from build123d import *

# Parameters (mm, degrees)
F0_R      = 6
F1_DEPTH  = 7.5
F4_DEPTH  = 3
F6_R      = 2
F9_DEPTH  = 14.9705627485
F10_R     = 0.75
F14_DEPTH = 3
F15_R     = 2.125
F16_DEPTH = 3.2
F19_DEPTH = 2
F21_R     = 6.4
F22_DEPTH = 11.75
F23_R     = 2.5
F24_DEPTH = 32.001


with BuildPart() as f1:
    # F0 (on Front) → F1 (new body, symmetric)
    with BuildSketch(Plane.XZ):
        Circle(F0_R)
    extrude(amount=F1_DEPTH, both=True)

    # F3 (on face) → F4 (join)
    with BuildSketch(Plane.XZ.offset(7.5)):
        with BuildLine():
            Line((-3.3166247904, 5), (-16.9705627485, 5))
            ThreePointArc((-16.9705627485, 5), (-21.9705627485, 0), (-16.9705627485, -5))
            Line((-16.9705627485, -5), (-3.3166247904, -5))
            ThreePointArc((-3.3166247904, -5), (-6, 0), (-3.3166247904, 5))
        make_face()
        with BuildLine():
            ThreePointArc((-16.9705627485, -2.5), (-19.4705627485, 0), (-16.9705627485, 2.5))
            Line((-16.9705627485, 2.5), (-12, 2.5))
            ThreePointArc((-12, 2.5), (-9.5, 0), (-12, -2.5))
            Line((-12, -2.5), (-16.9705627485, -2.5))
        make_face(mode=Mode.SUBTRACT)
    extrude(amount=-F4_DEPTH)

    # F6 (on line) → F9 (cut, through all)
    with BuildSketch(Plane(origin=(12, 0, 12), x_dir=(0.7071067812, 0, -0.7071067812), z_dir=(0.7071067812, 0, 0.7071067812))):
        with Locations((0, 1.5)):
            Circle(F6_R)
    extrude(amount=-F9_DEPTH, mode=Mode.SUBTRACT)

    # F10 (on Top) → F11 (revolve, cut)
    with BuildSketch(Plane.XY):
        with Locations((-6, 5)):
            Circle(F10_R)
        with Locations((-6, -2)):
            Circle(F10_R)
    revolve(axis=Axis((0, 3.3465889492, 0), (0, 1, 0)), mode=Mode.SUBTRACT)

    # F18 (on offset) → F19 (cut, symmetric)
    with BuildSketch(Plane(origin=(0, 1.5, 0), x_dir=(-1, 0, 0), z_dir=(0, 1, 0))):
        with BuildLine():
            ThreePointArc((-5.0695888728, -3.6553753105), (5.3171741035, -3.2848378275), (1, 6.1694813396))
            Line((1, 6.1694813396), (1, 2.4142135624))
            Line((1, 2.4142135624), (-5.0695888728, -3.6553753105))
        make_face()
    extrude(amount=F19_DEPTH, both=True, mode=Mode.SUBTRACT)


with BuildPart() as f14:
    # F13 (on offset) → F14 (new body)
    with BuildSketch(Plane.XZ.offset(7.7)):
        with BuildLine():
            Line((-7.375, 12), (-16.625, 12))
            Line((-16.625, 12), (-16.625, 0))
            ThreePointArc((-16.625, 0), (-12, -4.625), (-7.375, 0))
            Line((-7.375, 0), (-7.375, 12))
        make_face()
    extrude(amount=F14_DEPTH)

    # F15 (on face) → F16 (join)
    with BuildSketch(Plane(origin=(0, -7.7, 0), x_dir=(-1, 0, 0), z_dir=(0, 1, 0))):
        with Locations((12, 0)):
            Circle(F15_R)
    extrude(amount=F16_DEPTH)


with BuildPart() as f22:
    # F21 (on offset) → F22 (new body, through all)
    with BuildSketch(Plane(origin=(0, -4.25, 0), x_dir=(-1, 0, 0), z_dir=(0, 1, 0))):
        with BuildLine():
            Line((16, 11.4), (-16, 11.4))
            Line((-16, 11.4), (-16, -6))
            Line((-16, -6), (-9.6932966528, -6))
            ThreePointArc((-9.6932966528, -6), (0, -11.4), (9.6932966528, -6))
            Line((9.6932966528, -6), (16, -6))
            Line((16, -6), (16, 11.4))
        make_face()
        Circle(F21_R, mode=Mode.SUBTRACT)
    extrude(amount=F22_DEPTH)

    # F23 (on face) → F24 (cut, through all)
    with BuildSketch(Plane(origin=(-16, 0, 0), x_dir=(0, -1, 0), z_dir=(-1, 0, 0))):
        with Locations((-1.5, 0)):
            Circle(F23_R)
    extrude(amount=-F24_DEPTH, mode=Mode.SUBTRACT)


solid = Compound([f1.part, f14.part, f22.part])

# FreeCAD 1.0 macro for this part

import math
import FreeCAD as App
import Part
import Sketcher
from FreeCAD import Vector
Q = App.Units.Quantity

doc = App.newDocument("Part")
body = doc.addObject("PartDesign::Body", "Body")

# Sketch on XZ plane
sketch1 = body.newObject("Sketcher::SketchObject", "Sketch")
sketch1.AttachmentSupport = (doc.getObject("XZ_Plane"), [""])
sketch1.MapMode = "FlatFace"
sketch1.addGeometry(Part.Circle(Vector(0, 0, 0), Vector(0, 0, 1), 6), False)
sketch1.addConstraint([
    Sketcher.Constraint("Coincident", 0, 3, -1, 1),
    Sketcher.Constraint("Diameter", 0, Q("12 mm")),
])
pad1 = body.newObject("PartDesign::Pad", "Pad")
pad1.Profile = sketch1
pad1.Length = 15
pad1.Midplane = True

# Sketch on XZ plane
sketch2 = body.newObject("Sketcher::SketchObject", "Sketch001")
sketch2.AttachmentSupport = (doc.getObject("XZ_Plane"), [""])
sketch2.MapMode = "FlatFace"
sketch2.AttachmentOffset = App.Placement(Vector(0, 0, 7.5), App.Rotation())
sketch2.addGeometry([
    Part.LineSegment(Vector(-3.3, 5, 0), Vector(-17, 5, 0)),  # 0
    Part.ArcOfCircle(Part.Circle(Vector(-17, 0, 0), Vector(0, 0, 1), 5), math.radians(90), math.radians(270)),  # 1
    Part.LineSegment(Vector(-17, -5, 0), Vector(-3.3, -5, 0)),  # 2
    Part.ArcOfCircle(Part.Circle(Vector(0, 0, 0), Vector(0, 0, 1), 6), math.radians(124), math.radians(236)),  # 3
    Part.LineSegment(Vector(-12, -2.5, 0), Vector(-17, -2.5, 0)),  # 4
    Part.ArcOfCircle(Part.Circle(Vector(-17, 0, 0), Vector(0, 0, 1), 2.5), math.radians(90), math.radians(270)),  # 5
    Part.LineSegment(Vector(-17, 2.5, 0), Vector(-12, 2.5, 0)),  # 6
    Part.ArcOfCircle(Part.Circle(Vector(-12, 0, 0), Vector(0, 0, 1), 2.5), math.radians(-90), math.radians(90)),  # 7
], False)
sketch2.addConstraint([
    Sketcher.Constraint("Tangent", 0, 2, 1, 1),
    Sketcher.Constraint("Tangent", 1, 2, 2, 1),
    Sketcher.Constraint("Coincident", 2, 2, 3, 2),
    Sketcher.Constraint("Coincident", 3, 1, 0, 1),
    Sketcher.Constraint("Tangent", 4, 2, 5, 2),
    Sketcher.Constraint("Tangent", 5, 1, 6, 1),
    Sketcher.Constraint("Tangent", 6, 2, 7, 2),
    Sketcher.Constraint("Tangent", 7, 1, 4, 1),
    Sketcher.Constraint("Horizontal", 0),
    Sketcher.Constraint("Horizontal", 2),
    Sketcher.Constraint("Horizontal", 4),
    Sketcher.Constraint("Horizontal", 6),
    Sketcher.Constraint("Coincident", 3, 3, -1, 1),
    Sketcher.Constraint("Coincident", 5, 3, 1, 3),
    Sketcher.Constraint("PointOnObject", 1, 3, -1),
    Sketcher.Constraint("Radius", 1, Q("5 mm")),
    Sketcher.Constraint("Radius", 3, Q("6 mm")),
    Sketcher.Constraint("Radius", 5, Q("2.5 mm")),
    Sketcher.Constraint("DistanceX", 7, 3, -1, 1, Q("12 mm")),
    Sketcher.Constraint("DistanceX", 0, 2, 0, 1, Q("13.653938 mm")),
])
pad2 = body.newObject("PartDesign::Pad", "Pad001")
pad2.Profile = sketch2
pad2.Length = 3
pad2.Reversed = True

# Sketch on an angled plane
sketch3 = body.newObject("Sketcher::SketchObject", "Sketch002")
sketch3.Placement = App.Placement(Vector(12, 0, 12), App.Rotation(Vector(0.707106781, 0, -0.707106781), Vector(0, 0.999999999, 0), Vector(0.707106781, 0, 0.707106781), "ZXY"))
sketch3.addGeometry(Part.Circle(Vector(0, 1.5, 0), Vector(0, 0, 1), 2), False)
sketch3.addConstraint([
    Sketcher.Constraint("PointOnObject", 0, 3, -2),
    Sketcher.Constraint("Diameter", 0, Q("4 mm")),
    Sketcher.Constraint("DistanceY", -1, 1, 0, 3, Q("1.5 mm")),
])
pocket1 = body.newObject("PartDesign::Pocket", "Pocket")
pocket1.Profile = sketch3
pocket1.Length = 14.970563

# Sketch on XY plane
sketch4 = body.newObject("Sketcher::SketchObject", "Sketch003")
sketch4.AttachmentSupport = (doc.getObject("XY_Plane"), [""])
sketch4.MapMode = "FlatFace"
sketch4.addGeometry([
    Part.Circle(Vector(-6, 5, 0), Vector(0, 0, 1), 0.8),
    Part.Circle(Vector(-6, -2, 0), Vector(0, 0, 1), 0.8),
], False)
sketch4.addConstraint([
    Sketcher.Constraint("Equal", 0, 1),
    Sketcher.Constraint("Vertical", 0, 3, 1, 3),
    Sketcher.Constraint("Diameter", 0, Q("1.5 mm")),
    Sketcher.Constraint("DistanceX", 0, 3, -1, 1, Q("6 mm")),
    Sketcher.Constraint("DistanceY", -1, 1, 0, 3, Q("5 mm")),
    Sketcher.Constraint("DistanceY", 1, 3, -1, 1, Q("2 mm")),
])
groove = body.newObject("PartDesign::Groove", "Groove")
groove.Profile = sketch4
groove.ReferenceAxis = (sketch4, ["V_Axis"])
groove.Angle = 360

# Sketch on XZ plane
sketch5 = body.newObject("Sketcher::SketchObject", "Sketch004")
sketch5.AttachmentSupport = (doc.getObject("XZ_Plane"), [""])
sketch5.MapMode = "FlatFace"
sketch5.AttachmentOffset = App.Placement(Vector(0, 0, -1.5), App.Rotation())
sketch5.addGeometry([
    Part.ArcOfCircle(Part.Circle(Vector(0, 0, 0), Vector(0, 0, 1), 6.2), math.radians(99), math.radians(324)),
    Part.LineSegment(Vector(-1, 6.2, 0), Vector(-1, 2.4, 0)),
    Part.LineSegment(Vector(-1, 2.4, 0), Vector(5.1, -3.7, 0)),
], False)
sketch5.addConstraint([
    Sketcher.Constraint("Coincident", 0, 1, 1, 1),
    Sketcher.Constraint("Coincident", 1, 2, 2, 1),
    Sketcher.Constraint("Coincident", 2, 2, 0, 2),
    Sketcher.Constraint("Vertical", 1),
    Sketcher.Constraint("Coincident", 0, 3, -1, 1),
    Sketcher.Constraint("Angle", 2, Q("-45 deg")),
    Sketcher.Constraint("Radius", 0, Q("6.25 mm")),
    Sketcher.Constraint("DistanceX", 0, 1, -1, 1, Q("1 mm")),
    Sketcher.Constraint("DistanceY", 1, 2, 1, 1, Q("3.755268 mm")),
])
pocket2 = body.newObject("PartDesign::Pocket", "Pocket001")
pocket2.Profile = sketch5
pocket2.Length = 4
pocket2.Midplane = True
body2 = doc.addObject("PartDesign::Body", "Body001")

# Sketch on XZ plane
sketch6 = body2.newObject("Sketcher::SketchObject", "Sketch005")
sketch6.AttachmentSupport = (doc.getObject("XZ_Plane001"), [""])
sketch6.MapMode = "FlatFace"
sketch6.AttachmentOffset = App.Placement(Vector(0, 0, 7.7), App.Rotation())
sketch6.addGeometry([
    Part.LineSegment(Vector(-7.4, 12, 0), Vector(-16.6, 12, 0)),
    Part.LineSegment(Vector(-16.6, 12, 0), Vector(-16.6, 0, 0)),
    Part.ArcOfCircle(Part.Circle(Vector(-12, 0, 0), Vector(0, 0, 1), 4.6), math.radians(180), math.radians(360)),
    Part.LineSegment(Vector(-7.4, 0, 0), Vector(-7.4, 12, 0)),
], False)
sketch6.addConstraint([
    Sketcher.Constraint("Coincident", 0, 2, 1, 1),
    Sketcher.Constraint("Tangent", 1, 2, 2, 1),
    Sketcher.Constraint("Tangent", 2, 2, 3, 1),
    Sketcher.Constraint("Coincident", 3, 2, 0, 1),
    Sketcher.Constraint("Horizontal", 0),
    Sketcher.Constraint("Vertical", 1),
    Sketcher.Constraint("Vertical", 3),
    Sketcher.Constraint("PointOnObject", 2, 3, -1),
    Sketcher.Constraint("DistanceY", 1, 2, 1, 1, Q("12 mm")),
    Sketcher.Constraint("DistanceX", 2, 3, -1, 1, Q("12 mm")),
    Sketcher.Constraint("Radius", 2, Q("4.625 mm")),
])
pad3 = body2.newObject("PartDesign::Pad", "Pad002")
pad3.Profile = sketch6
pad3.Length = 3

# Sketch on XZ plane
sketch7 = body2.newObject("Sketcher::SketchObject", "Sketch006")
sketch7.AttachmentSupport = (doc.getObject("XZ_Plane001"), [""])
sketch7.MapMode = "FlatFace"
sketch7.AttachmentOffset = App.Placement(Vector(0, 0, 7.7), App.Rotation())
sketch7.addGeometry(Part.Circle(Vector(-12, 0, 0), Vector(0, 0, 1), 2.1), False)
sketch7.addConstraint([
    Sketcher.Constraint("PointOnObject", 0, 3, -1),
    Sketcher.Constraint("Diameter", 0, Q("4.25 mm")),
    Sketcher.Constraint("DistanceX", 0, 3, -1, 1, Q("12 mm")),
])
pad4 = body2.newObject("PartDesign::Pad", "Pad003")
pad4.Profile = sketch7
pad4.Length = 3.2
pad4.Reversed = True
body3 = doc.addObject("PartDesign::Body", "Body002")

# Sketch on XZ plane
sketch8 = body3.newObject("Sketcher::SketchObject", "Sketch007")
sketch8.AttachmentSupport = (doc.getObject("XZ_Plane002"), [""])
sketch8.MapMode = "FlatFace"
sketch8.AttachmentOffset = App.Placement(Vector(0, 0, 4.25), App.Rotation())
sketch8.addGeometry([
    Part.LineSegment(Vector(-16, 11, 0), Vector(16, 11, 0)),  # 0
    Part.LineSegment(Vector(16, 11, 0), Vector(16, -6, 0)),  # 1
    Part.LineSegment(Vector(16, -6, 0), Vector(10, -6, 0)),  # 2
    Part.ArcOfCircle(Part.Circle(Vector(0, 0, 0), Vector(0, 0, 1), 11), math.radians(-148), math.radians(-32)),  # 3
    Part.LineSegment(Vector(-10, -6, 0), Vector(-16, -6, 0)),  # 4
    Part.LineSegment(Vector(-16, -6, 0), Vector(-16, 11, 0)),  # 5
    Part.Circle(Vector(0, 0, 0), Vector(0, 0, 1), 6),  # 6
], False)
sketch8.addConstraint([
    Sketcher.Constraint("Coincident", 0, 2, 1, 1),
    Sketcher.Constraint("Coincident", 1, 2, 2, 1),
    Sketcher.Constraint("Coincident", 2, 2, 3, 2),
    Sketcher.Constraint("Coincident", 3, 1, 4, 1),
    Sketcher.Constraint("Coincident", 4, 2, 5, 1),
    Sketcher.Constraint("Coincident", 5, 2, 0, 1),
    Sketcher.Constraint("Horizontal", 0),
    Sketcher.Constraint("Vertical", 1),
    Sketcher.Constraint("Horizontal", 2),
    Sketcher.Constraint("Horizontal", 4),
    Sketcher.Constraint("Vertical", 5),
    Sketcher.Constraint("Coincident", 3, 3, -1, 1),
    Sketcher.Constraint("Coincident", 6, 3, -1, 1),
    Sketcher.Constraint("Symmetric", 1, 2, 4, 2, -2),
    Sketcher.Constraint("Diameter", 6, Q("12.8 mm")),
    Sketcher.Constraint("Radius", 3, Q("11.4 mm")),
    Sketcher.Constraint("DistanceX", 0, 1, 0, 2, Q("32 mm")),
    Sketcher.Constraint("DistanceY", 1, 2, 1, 1, Q("17.4 mm")),
    Sketcher.Constraint("DistanceY", 1, 2, -1, 1, Q("6 mm")),
])
pad5 = body3.newObject("PartDesign::Pad", "Pad004")
pad5.Profile = sketch8
pad5.Length = 11.75
pad5.Reversed = True

# Sketch on YZ plane
sketch9 = body3.newObject("Sketcher::SketchObject", "Sketch008")
sketch9.AttachmentSupport = (doc.getObject("YZ_Plane002"), [""])
sketch9.MapMode = "FlatFace"
sketch9.AttachmentOffset = App.Placement(Vector(0, 0, -16), App.Rotation())
sketch9.addGeometry(Part.Circle(Vector(1.5, 0, 0), Vector(0, 0, 1), 2.5), False)
sketch9.addConstraint([
    Sketcher.Constraint("PointOnObject", 0, 3, -1),
    Sketcher.Constraint("Diameter", 0, Q("5 mm")),
    Sketcher.Constraint("DistanceX", -1, 1, 0, 3, Q("1.5 mm")),
])
pocket3 = body3.newObject("PartDesign::Pocket", "Pocket002")
pocket3.Profile = sketch9
pocket3.Type = "ThroughAll"
pocket3.Reversed = True

doc.recompute()
